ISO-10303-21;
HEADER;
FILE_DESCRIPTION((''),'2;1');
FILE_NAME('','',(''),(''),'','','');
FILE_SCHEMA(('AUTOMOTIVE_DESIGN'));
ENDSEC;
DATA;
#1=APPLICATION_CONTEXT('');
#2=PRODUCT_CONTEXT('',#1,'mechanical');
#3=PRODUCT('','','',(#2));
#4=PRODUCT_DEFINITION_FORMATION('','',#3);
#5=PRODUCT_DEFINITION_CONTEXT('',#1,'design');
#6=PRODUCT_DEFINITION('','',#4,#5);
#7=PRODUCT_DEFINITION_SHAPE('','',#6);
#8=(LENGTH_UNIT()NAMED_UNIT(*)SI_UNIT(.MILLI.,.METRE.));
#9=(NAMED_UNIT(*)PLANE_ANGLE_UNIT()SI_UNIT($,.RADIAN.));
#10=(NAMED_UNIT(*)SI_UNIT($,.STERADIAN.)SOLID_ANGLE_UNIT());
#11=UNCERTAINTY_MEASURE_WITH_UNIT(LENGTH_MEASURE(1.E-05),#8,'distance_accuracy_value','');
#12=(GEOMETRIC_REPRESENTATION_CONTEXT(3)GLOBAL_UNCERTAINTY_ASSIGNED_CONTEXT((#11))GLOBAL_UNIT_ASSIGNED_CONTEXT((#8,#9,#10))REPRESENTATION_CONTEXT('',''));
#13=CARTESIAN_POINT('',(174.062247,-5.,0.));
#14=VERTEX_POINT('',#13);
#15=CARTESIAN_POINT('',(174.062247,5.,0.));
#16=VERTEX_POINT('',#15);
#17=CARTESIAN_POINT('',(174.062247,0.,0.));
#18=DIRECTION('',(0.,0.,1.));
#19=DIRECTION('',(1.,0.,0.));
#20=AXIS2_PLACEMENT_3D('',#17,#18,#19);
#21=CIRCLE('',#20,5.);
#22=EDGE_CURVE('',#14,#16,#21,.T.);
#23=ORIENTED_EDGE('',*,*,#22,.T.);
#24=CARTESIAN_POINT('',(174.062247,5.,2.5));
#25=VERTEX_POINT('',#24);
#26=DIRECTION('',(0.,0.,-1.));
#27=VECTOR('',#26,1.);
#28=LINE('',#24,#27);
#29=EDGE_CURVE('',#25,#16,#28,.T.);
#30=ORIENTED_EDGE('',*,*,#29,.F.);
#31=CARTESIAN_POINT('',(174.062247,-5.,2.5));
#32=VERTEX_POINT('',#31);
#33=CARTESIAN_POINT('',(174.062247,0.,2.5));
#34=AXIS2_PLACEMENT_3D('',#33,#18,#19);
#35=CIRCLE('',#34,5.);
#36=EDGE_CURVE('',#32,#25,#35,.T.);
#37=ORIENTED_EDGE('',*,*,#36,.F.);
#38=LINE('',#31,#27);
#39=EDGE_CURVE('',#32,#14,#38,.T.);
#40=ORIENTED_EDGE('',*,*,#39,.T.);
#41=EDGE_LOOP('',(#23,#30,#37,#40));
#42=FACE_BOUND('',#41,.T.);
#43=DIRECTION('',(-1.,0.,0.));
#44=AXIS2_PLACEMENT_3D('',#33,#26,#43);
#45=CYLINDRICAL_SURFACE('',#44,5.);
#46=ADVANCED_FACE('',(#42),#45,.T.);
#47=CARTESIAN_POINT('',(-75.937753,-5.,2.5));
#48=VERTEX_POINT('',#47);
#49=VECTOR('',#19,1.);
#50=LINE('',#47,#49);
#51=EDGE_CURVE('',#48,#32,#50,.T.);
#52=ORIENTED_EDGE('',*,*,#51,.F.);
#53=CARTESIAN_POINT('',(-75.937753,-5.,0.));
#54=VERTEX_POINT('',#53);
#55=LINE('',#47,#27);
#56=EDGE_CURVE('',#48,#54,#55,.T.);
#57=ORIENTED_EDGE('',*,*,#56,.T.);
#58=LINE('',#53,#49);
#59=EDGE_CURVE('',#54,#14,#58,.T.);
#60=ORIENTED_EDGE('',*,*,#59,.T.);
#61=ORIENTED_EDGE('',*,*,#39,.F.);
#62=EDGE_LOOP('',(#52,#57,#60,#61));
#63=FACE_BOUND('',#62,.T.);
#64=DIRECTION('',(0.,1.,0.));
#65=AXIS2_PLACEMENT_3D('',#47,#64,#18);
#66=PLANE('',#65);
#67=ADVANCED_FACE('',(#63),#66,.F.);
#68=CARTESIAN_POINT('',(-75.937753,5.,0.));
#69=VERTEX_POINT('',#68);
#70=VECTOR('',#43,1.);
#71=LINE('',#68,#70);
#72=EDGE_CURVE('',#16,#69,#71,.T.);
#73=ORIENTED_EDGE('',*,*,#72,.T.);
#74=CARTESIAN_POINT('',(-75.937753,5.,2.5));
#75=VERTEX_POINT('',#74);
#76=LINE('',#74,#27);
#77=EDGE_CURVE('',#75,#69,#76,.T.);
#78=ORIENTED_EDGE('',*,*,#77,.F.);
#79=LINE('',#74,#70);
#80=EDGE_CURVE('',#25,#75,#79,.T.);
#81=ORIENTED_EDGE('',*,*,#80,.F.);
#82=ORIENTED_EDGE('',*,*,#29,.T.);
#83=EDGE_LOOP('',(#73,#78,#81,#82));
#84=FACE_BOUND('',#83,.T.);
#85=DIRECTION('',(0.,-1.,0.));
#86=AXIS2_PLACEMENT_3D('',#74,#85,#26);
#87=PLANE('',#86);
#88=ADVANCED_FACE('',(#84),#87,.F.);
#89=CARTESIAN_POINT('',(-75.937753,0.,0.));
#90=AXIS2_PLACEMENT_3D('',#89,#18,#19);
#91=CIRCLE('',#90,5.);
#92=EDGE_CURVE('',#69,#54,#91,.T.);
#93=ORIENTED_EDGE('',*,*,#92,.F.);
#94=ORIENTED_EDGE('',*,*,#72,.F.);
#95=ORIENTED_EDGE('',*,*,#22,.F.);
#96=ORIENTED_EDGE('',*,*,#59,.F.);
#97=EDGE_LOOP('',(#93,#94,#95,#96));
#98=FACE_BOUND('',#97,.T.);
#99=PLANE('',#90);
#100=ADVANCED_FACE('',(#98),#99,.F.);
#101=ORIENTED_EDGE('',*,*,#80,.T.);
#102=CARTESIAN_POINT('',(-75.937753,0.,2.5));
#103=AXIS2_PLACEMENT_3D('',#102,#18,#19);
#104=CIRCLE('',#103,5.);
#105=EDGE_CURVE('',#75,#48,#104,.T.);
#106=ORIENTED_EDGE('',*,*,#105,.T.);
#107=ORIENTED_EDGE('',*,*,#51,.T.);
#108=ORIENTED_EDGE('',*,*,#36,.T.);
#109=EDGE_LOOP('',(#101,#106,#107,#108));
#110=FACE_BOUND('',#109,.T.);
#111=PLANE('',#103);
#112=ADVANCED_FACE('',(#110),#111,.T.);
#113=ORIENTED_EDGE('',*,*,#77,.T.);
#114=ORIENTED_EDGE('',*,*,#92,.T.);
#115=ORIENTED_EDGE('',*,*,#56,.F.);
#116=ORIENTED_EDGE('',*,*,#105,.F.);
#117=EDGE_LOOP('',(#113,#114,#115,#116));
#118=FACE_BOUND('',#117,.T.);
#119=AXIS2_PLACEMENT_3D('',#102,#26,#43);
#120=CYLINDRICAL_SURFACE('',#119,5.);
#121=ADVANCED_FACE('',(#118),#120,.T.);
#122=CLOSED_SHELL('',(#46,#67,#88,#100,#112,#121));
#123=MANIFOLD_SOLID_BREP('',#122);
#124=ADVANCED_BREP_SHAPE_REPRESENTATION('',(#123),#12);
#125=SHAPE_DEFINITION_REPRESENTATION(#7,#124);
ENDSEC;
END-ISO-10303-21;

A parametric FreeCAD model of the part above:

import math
import FreeCAD as App
import Part
import Sketcher
from FreeCAD import Vector

doc = App.newDocument("Part")
body = doc.addObject("PartDesign::Body", "Body")

# Sketch on XY plane
sketch1 = body.newObject("Sketcher::SketchObject", "Sketch")
sketch1.AttachmentSupport = (doc.getObject("XY_Plane"), [""])
sketch1.MapMode = "FlatFace"
sketch1.addGeometry([
    Part.LineSegment(Vector(174, 5, 0), Vector(-76, 5, 0)),
    Part.ArcOfCircle(Part.Circle(Vector(-76, 0, 0), Vector(0, 0, 1), 5), math.radians(90), math.radians(270)),
    Part.LineSegment(Vector(-76, -5, 0), Vector(174, -5, 0)),
    Part.ArcOfCircle(Part.Circle(Vector(174, 0, 0), Vector(0, 0, 1), 5), math.radians(-90), math.radians(90)),
], False)
sketch1.addConstraint([
    Sketcher.Constraint("Tangent", 0, 2, 1, 1),
    Sketcher.Constraint("Tangent", 1, 2, 2, 1),
    Sketcher.Constraint("Tangent", 2, 2, 3, 1),
    Sketcher.Constraint("Tangent", 3, 2, 0, 1),
    Sketcher.Constraint("Horizontal", 0),
    Sketcher.Constraint("Horizontal", 2),
    Sketcher.Constraint("PointOnObject", 1, 3, -1),
    Sketcher.Constraint("Radius", 1, 5.0),
    Sketcher.Constraint("DistanceX", 0, 2, 0, 1, 250.0),
    Sketcher.Constraint("DistanceX", 1, 3, -1, 1, 75.937753),
])
pad1 = body.newObject("PartDesign::Pad", "Pad")
pad1.Profile = sketch1
pad1.Length = 2.5

doc.recompute()
